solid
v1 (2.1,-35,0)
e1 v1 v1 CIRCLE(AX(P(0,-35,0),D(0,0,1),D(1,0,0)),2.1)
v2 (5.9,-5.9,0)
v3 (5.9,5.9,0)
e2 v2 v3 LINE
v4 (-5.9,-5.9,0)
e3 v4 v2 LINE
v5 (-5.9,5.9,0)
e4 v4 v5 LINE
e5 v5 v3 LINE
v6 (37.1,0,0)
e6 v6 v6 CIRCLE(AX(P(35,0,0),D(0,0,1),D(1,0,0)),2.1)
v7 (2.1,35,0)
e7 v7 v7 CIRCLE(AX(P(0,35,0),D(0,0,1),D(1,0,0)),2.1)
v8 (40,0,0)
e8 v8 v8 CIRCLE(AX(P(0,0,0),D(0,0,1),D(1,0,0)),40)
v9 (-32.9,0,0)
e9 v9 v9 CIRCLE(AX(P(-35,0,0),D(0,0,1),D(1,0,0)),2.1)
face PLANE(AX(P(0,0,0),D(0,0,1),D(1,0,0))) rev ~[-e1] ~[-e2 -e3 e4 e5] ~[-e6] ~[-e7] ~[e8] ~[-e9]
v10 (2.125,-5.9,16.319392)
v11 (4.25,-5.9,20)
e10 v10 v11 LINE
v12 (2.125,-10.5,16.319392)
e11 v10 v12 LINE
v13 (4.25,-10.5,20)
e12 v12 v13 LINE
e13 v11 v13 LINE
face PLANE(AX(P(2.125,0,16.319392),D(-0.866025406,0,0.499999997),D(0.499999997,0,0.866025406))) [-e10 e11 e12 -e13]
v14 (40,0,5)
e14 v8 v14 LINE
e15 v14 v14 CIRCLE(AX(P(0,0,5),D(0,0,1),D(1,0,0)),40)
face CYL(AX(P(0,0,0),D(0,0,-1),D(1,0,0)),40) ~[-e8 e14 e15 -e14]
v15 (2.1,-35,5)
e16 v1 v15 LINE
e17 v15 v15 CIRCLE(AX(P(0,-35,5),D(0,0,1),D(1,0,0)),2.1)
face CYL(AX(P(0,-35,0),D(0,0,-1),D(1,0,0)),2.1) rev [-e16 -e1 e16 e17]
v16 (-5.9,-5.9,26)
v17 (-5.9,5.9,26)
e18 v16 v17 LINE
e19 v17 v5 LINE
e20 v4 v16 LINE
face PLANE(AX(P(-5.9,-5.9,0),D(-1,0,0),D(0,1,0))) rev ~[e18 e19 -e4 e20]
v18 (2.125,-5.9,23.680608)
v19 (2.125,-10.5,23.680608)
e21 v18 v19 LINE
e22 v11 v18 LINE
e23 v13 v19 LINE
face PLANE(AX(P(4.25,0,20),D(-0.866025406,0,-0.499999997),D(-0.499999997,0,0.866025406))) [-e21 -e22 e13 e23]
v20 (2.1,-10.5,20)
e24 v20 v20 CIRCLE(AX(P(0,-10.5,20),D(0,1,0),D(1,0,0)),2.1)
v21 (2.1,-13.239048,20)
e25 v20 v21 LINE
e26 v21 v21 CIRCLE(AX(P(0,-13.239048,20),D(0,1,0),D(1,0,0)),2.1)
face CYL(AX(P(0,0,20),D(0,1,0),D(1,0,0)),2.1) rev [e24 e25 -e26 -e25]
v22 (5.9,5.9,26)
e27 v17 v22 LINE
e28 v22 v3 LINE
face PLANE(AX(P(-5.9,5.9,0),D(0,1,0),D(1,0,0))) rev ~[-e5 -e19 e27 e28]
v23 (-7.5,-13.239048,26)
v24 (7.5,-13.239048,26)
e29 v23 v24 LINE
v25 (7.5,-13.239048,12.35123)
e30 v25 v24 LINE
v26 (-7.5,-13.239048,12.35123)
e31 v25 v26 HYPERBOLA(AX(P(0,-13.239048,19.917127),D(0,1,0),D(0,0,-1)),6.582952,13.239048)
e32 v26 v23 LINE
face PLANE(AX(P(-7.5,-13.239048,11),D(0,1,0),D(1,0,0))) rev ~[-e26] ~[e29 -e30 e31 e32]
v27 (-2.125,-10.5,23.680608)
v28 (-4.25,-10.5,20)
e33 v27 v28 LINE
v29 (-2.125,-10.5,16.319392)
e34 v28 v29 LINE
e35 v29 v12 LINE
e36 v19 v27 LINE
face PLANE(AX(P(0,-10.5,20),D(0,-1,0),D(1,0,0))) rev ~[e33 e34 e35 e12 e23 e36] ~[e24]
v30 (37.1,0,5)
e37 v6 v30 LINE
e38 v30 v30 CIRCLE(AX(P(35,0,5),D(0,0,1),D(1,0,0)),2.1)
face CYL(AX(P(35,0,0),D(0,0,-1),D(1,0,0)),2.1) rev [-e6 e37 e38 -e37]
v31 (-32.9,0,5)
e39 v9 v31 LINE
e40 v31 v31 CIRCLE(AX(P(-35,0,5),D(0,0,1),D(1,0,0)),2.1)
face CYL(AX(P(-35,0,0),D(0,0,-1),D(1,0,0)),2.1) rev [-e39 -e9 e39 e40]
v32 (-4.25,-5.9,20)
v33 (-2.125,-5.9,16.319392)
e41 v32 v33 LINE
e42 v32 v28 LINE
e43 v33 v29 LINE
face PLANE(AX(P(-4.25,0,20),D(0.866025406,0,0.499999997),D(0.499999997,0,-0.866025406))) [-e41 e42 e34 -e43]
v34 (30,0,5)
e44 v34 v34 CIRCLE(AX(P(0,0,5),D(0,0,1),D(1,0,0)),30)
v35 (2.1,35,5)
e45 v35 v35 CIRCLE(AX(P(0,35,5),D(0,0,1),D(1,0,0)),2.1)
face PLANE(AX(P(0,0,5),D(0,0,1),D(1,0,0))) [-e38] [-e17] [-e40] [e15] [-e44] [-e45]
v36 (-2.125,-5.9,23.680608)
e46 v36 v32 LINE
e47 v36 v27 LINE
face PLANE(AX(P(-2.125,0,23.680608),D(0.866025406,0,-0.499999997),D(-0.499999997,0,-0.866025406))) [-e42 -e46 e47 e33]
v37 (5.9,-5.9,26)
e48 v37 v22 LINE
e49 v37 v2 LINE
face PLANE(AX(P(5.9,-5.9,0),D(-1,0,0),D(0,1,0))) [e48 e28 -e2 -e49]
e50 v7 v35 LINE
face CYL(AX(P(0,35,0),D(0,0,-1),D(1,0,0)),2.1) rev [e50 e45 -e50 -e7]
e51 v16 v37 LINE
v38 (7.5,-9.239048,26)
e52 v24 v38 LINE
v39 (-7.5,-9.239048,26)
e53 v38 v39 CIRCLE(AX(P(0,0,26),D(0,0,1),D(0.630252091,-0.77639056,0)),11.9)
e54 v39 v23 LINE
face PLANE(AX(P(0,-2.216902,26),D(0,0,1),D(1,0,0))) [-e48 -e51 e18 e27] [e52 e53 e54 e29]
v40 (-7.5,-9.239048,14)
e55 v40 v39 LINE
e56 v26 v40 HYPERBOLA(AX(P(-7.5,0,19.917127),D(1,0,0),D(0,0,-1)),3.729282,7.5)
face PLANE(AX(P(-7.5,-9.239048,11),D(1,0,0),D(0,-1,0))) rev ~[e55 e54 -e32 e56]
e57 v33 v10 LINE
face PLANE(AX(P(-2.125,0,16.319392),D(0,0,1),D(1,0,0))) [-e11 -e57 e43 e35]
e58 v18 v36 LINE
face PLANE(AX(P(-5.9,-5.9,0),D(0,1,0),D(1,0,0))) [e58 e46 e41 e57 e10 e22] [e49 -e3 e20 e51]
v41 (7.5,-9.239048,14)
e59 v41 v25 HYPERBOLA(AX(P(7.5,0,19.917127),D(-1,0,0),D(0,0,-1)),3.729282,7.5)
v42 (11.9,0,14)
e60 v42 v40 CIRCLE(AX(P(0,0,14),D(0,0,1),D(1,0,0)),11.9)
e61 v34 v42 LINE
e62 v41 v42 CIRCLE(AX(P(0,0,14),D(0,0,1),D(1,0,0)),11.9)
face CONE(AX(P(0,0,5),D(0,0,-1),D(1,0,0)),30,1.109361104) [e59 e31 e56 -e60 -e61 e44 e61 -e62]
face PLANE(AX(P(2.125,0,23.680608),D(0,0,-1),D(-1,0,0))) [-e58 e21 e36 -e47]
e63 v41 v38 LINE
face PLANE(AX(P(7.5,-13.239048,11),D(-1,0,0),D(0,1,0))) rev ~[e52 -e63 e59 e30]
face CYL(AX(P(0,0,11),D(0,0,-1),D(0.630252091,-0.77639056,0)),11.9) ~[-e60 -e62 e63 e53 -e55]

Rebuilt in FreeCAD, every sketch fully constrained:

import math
import FreeCAD as App
import Part
import Sketcher

V = App.Vector
Q = App.Units.Quantity

doc = App.newDocument("Part")
body = doc.addObject("PartDesign::Body", "Body")

sketch1 = body.newObject("Sketcher::SketchObject", "Sketch")
sketch1.AttachmentSupport = (doc.getObject("XY_Plane"), [""])
sketch1.MapMode = "FlatFace"
sketch1.addGeometry([
    Part.LineSegment(V(-6, 6, 0), V(-6, -6, 0)),
    Part.LineSegment(V(-6, -6, 0), V(6, -6, 0)),
    Part.LineSegment(V(6, -6, 0), V(6, 6, 0)),
    Part.LineSegment(V(6, 6, 0), V(-6, 6, 0)),
], False)
sketch1.addConstraint([
    Sketcher.Constraint("Coincident", 0, 2, 1, 1),
    Sketcher.Constraint("Coincident", 1, 2, 2, 1),
    Sketcher.Constraint("Coincident", 2, 2, 3, 1),
    Sketcher.Constraint("Coincident", 3, 2, 0, 1),
    Sketcher.Constraint("Vertical", 0),
    Sketcher.Constraint("Horizontal", 1),
    Sketcher.Constraint("Vertical", 2),
    Sketcher.Constraint("Horizontal", 3),
    Sketcher.Constraint("Symmetric", 0, 2, 2, 2, -1, 1),
    Sketcher.Constraint("Equal", 3, 0),
    Sketcher.Constraint("DistanceX", 1, 1, 1, 2, 11.8),
])
pad1 = body.newObject("PartDesign::Pad", "Pad")
pad1.Profile = sketch1
pad1.Length = 30
body2 = doc.addObject("PartDesign::Body", "Body001")

sketch2 = body2.newObject("Sketcher::SketchObject", "Sketch001")
sketch2.AttachmentSupport = (doc.getObject("XY_Plane001"), [""])
sketch2.MapMode = "FlatFace"
sketch2.addGeometry([
    Part.Circle(V(0, 0, 0), V(0, 0, 1), 40),
    Part.Circle(V(0, -35, 0), V(0, 0, 1), 2.1),
    Part.Circle(V(-35, 0, 0), V(0, 0, 1), 2.1),
    Part.Circle(V(35, 0, 0), V(0, 0, 1), 2.1),
    Part.Circle(V(0, 35, 0), V(0, 0, 1), 2.1),
], False)
sketch2.addConstraint([
    Sketcher.Constraint("Coincident", 0, 3, -1, 1),
    Sketcher.Constraint("Equal", 1, 2),
    Sketcher.Constraint("Equal", 2, 3),
    Sketcher.Constraint("Equal", 3, 4),
    Sketcher.Constraint("Symmetric", 2, 3, 3, 3, -1, 1),
    Sketcher.Constraint("Symmetric", 1, 3, 4, 3, -1, 1),
    Sketcher.Constraint("PointOnObject", 1, 3, -2),
    Sketcher.Constraint("PointOnObject", 2, 3, -1),
    Sketcher.Constraint("Diameter", 0, 80.0),
    Sketcher.Constraint("Diameter", 1, 4.2),
    Sketcher.Constraint("DistanceY", 1, 3, -1, 1, 35.0),
    Sketcher.Constraint("DistanceX", 2, 3, -1, 1, 35.0),
])
pad2 = body2.newObject("PartDesign::Pad", "Pad001")
pad2.Profile = sketch2
pad2.Length = 5
body3 = doc.addObject("PartDesign::Body", "Body002")

sketch3 = body3.newObject("Sketcher::SketchObject", "Sketch002")
sketch3.AttachmentSupport = (doc.getObject("XZ_Plane002"), [""])
sketch3.MapMode = "FlatFace"
sketch3.addGeometry([
    Part.LineSegment(V(0, 5, 0), V(30, 5, 0)),
    Part.LineSegment(V(30, 5, 0), V(12, 14, 0)),
    Part.LineSegment(V(12, 14, 0), V(0, 14, 0)),
    Part.LineSegment(V(0, 14, 0), V(0, 5, 0)),
], False)
sketch3.addConstraint([
    Sketcher.Constraint("Coincident", 0, 2, 1, 1),
    Sketcher.Constraint("Coincident", 1, 2, 2, 1),
    Sketcher.Constraint("Coincident", 2, 2, 3, 1),
    Sketcher.Constraint("Coincident", 3, 2, 0, 1),
    Sketcher.Constraint("Horizontal", 0),
    Sketcher.Constraint("Horizontal", 2),
    Sketcher.Constraint("Vertical", 3),
    Sketcher.Constraint("PointOnObject", 2, 2, -2),
    Sketcher.Constraint("DistanceX", 0, 1, 0, 2, 30.0),
    Sketcher.Constraint("DistanceY", 3, 2, 3, 1, 9.0),
    Sketcher.Constraint("DistanceX", 2, 2, 2, 1, 11.9),
    Sketcher.Constraint("DistanceY", -1, 1, 0, 2, 5.0),
])
revolution = body3.newObject("PartDesign::Revolution", "Revolution")
revolution.Profile = sketch3
revolution.ReferenceAxis = (sketch3, ["V_Axis"])
revolution.Angle = 360
doc.recompute()

boolean = body3.newObject("PartDesign::Boolean", "Boolean")
boolean.Type = "Fuse"
boolean.addObjects([body2])
doc.recompute()

boolean2 = body3.newObject("PartDesign::Boolean", "Boolean001")
boolean2.Type = "Cut"
boolean2.addObjects([body])
body4 = doc.addObject("PartDesign::Body", "Body003")

sketch4 = body4.newObject("Sketcher::SketchObject", "Sketch003")
sketch4.AttachmentSupport = (doc.getObject("XZ_Plane003"), [""])
sketch4.MapMode = "FlatFace"
sketch4.addGeometry([
    Part.LineSegment(V(4.2, 24, 0), V(2.1, 27.7, 0)),
    Part.LineSegment(V(2.1, 27.7, 0), V(-2.1, 27.7, 0)),
    Part.LineSegment(V(-2.1, 27.7, 0), V(-4.2, 24, 0)),
    Part.LineSegment(V(-4.2, 24, 0), V(-2.1, 20.3, 0)),
    Part.LineSegment(V(-2.1, 20.3, 0), V(2.1, 20.3, 0)),
    Part.LineSegment(V(2.1, 20.3, 0), V(4.2, 24, 0)),
], False)
sketch4.addConstraint([
    Sketcher.Constraint("Coincident", 0, 2, 1, 1),
    Sketcher.Constraint("Coincident", 1, 2, 2, 1),
    Sketcher.Constraint("Coincident", 2, 2, 3, 1),
    Sketcher.Constraint("Coincident", 3, 2, 4, 1),
    Sketcher.Constraint("Coincident", 4, 2, 5, 1),
    Sketcher.Constraint("Coincident", 5, 2, 0, 1),
    Sketcher.Constraint("Horizontal", 1),
    Sketcher.Constraint("Horizontal", 4),
    Sketcher.Constraint("Symmetric", 2, 2, 5, 2, -2),
    Sketcher.Constraint("Parallel", 0, 3),
    Sketcher.Constraint("Parallel", 2, 5),
    Sketcher.Constraint("Vertical", 1, 2, 3, 2),
    Sketcher.Constraint("Vertical", 0, 2, 4, 2),
    Sketcher.Constraint("Angle", 0, Q("120 deg")),
    Sketcher.Constraint("DistanceY", -1, 1, 2, 2, 24.0),
    Sketcher.Constraint("DistanceX", 1, 2, 1, 1, 4.25),
    Sketcher.Constraint("DistanceX", 2, 2, 5, 2, 8.5),
])
pad3 = body4.newObject("PartDesign::Pad", "Pad002")
pad3.Profile = sketch4
pad3.Length = 10.5
body5 = doc.addObject("PartDesign::Body", "Body004")

sketch5 = body5.newObject("Sketcher::SketchObject", "Sketch004")
sketch5.AttachmentSupport = (doc.getObject("XZ_Plane004"), [""])
sketch5.MapMode = "FlatFace"
sketch5.addGeometry(Part.Circle(V(0, 24, 0), V(0, 0, 1), 2.1), False)
sketch5.addConstraint([
    Sketcher.Constraint("PointOnObject", 0, 3, -2),
    Sketcher.Constraint("Diameter", 0, 4.2),
    Sketcher.Constraint("DistanceY", -1, 1, 0, 3, 24.0),
])
pad4 = body5.newObject("PartDesign::Pad", "Pad003")
pad4.Profile = sketch5
pad4.Length = 20
doc.recompute()

boolean3 = body5.newObject("PartDesign::Boolean", "Boolean002")
boolean3.Type = "Fuse"
boolean3.addObjects([body4])
body6 = doc.addObject("PartDesign::Body", "Body005")

sketch6 = body6.newObject("Sketcher::SketchObject", "Sketch005")
sketch6.AttachmentSupport = (doc.getObject("XY_Plane005"), [""])
sketch6.MapMode = "FlatFace"
sketch6.AttachmentOffset = App.Placement(V(0, 0, 15), App.Rotation())
sketch6.addGeometry([
    Part.ArcOfCircle(Part.Circle(V(0, 0, 0), V(0, 0, 1), 11.9), math.radians(-51), math.radians(231)),
    Part.LineSegment(V(-7.5, -9.2, 0), V(-7.5, -13.2, 0)),
    Part.LineSegment(V(-7.5, -13.2, 0), V(7.5, -13.2, 0)),
    Part.LineSegment(V(7.5, -13.2, 0), V(7.5, -9.2, 0)),
    Part.LineSegment(V(5.9, -5.9, 0), V(-5.9, -5.9, 0)),
    Part.LineSegment(V(-5.9, -5.9, 0), V(-5.9, 5.9, 0)),
    Part.LineSegment(V(-5.9, 5.9, 0), V(5.9, 5.9, 0)),
    Part.LineSegment(V(5.9, 5.9, 0), V(5.9, -5.9, 0)),
], False)
sketch6.addConstraint([
    Sketcher.Constraint("Coincident", 0, 2, 1, 1),
    Sketcher.Constraint("Coincident", 1, 2, 2, 1),
    Sketcher.Constraint("Coincident", 2, 2, 3, 1),
    Sketcher.Constraint("Coincident", 3, 2, 0, 1),
    Sketcher.Constraint("Coincident", 4, 2, 5, 1),
    Sketcher.Constraint("Coincident", 5, 2, 6, 1),
    Sketcher.Constraint("Coincident", 6, 2, 7, 1),
    Sketcher.Constraint("Coincident", 7, 2, 4, 1),
    Sketcher.Constraint("Vertical", 1),
    Sketcher.Constraint("Horizontal", 2),
    Sketcher.Constraint("Vertical", 3),
    Sketcher.Constraint("Horizontal", 4),
    Sketcher.Constraint("Vertical", 5),
    Sketcher.Constraint("Horizontal", 6),
    Sketcher.Constraint("Vertical", 7),
    Sketcher.Constraint("Coincident", 0, 3, -1, 1),
    Sketcher.Constraint("Symmetric", 4, 2, 6, 2, -1, 1),
    Sketcher.Constraint("Horizontal", 0, 2, 3, 2),
    Sketcher.Constraint("Equal", 6, 5),
    Sketcher.Constraint("Radius", 0, 11.9),
    Sketcher.Constraint("DistanceX", 2, 1, 2, 2, 15.0),
    Sketcher.Constraint("DistanceY", 1, 2, 1, 1, 4.0),
    Sketcher.Constraint("DistanceX", 4, 2, 4, 1, 11.8),
])
pad5 = body6.newObject("PartDesign::Pad", "Pad004")
pad5.Profile = sketch6
pad5.Length = 15
doc.recompute()

boolean4 = body6.newObject("PartDesign::Boolean", "Boolean003")
boolean4.Type = "Cut"
boolean4.addObjects([body5])
body7 = doc.addObject("PartDesign::Body", "Body006")
doc.recompute()

body6.Placement = App.Placement(V(0, 0, -4), App.Rotation(V(0, 0, 1), 0))
boolean5 = body7.newObject("PartDesign::Boolean", "Boolean004")
boolean5.Type = "Fuse"
boolean5.addObjects([body6])
doc.recompute()

boolean6 = body7.newObject("PartDesign::Boolean", "Boolean005")
boolean6.Type = "Fuse"
boolean6.addObjects([body3])

doc.recompute()
